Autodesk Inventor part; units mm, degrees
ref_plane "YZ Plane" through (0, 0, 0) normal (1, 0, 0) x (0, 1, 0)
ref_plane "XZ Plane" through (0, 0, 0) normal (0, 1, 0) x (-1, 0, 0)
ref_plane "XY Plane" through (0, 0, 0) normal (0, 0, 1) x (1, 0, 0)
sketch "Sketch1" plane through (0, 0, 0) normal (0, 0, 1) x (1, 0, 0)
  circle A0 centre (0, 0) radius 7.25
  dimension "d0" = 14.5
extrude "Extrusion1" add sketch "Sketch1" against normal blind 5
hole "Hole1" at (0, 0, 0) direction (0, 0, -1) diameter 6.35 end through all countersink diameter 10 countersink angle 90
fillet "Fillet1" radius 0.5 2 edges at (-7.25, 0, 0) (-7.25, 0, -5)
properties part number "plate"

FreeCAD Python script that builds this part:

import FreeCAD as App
import Part
import Sketcher

V = App.Vector


def edges_at(feature, points):
    """Names of the edges that pass closest to the given points."""
    edges = feature.Shape.Edges
    near = lambda p: min(range(len(edges)), key=lambda i: edges[i].distToShape(Part.Vertex(*p))[0])
    return sorted({f"Edge{near(p) + 1}" for p in points})

doc = App.newDocument("Part")
body = doc.addObject("PartDesign::Body", "Body")

# Sketch on XY plane
sketch1 = body.newObject("Sketcher::SketchObject", "Sketch")
sketch1.AttachmentSupport = (doc.getObject("XY_Plane"), [""])
sketch1.MapMode = "FlatFace"
sketch1.addGeometry(Part.Circle(V(0, 0, 0), V(0, 0, 1), 7), False)
sketch1.addConstraint([
    Sketcher.Constraint("Coincident", 0, 3, -1, 1),
    Sketcher.Constraint("Diameter", 0, 14.5),
])
pad1 = body.newObject("PartDesign::Pad", "Pad")
pad1.Profile = sketch1
pad1.Length = 5
pad1.Reversed = True

# Sketch on XY plane
sketch2 = body.newObject("Sketcher::SketchObject", "Sketch001")
sketch2.AttachmentSupport = (doc.getObject("XY_Plane"), [""])
sketch2.MapMode = "FlatFace"
sketch2.addGeometry(Part.Circle(V(0, 0, 0), V(0, 0, 1), 3.2), False)
sketch2.addConstraint([
    Sketcher.Constraint("Coincident", 0, 3, -1, 1),
    Sketcher.Constraint("Diameter", 0, 6.35),
])
doc.recompute()
hole = body.newObject("PartDesign::Hole", "Hole")
hole.Profile = sketch2
hole.ThreadType = "None"
hole.Diameter = 6.35
hole.DepthType = "ThroughAll"
hole.HoleCutType = "Countersink"
hole.HoleCutDiameter = 10
hole.HoleCutCountersinkAngle = 90
doc.recompute()

fillet = body.newObject("PartDesign::Fillet", "Fillet")
fillet.Base = (hole, edges_at(hole, [(-7.25, 0, 0), (-7.25, 0, -5)]))
fillet.Radius = 0.5

doc.recompute()
